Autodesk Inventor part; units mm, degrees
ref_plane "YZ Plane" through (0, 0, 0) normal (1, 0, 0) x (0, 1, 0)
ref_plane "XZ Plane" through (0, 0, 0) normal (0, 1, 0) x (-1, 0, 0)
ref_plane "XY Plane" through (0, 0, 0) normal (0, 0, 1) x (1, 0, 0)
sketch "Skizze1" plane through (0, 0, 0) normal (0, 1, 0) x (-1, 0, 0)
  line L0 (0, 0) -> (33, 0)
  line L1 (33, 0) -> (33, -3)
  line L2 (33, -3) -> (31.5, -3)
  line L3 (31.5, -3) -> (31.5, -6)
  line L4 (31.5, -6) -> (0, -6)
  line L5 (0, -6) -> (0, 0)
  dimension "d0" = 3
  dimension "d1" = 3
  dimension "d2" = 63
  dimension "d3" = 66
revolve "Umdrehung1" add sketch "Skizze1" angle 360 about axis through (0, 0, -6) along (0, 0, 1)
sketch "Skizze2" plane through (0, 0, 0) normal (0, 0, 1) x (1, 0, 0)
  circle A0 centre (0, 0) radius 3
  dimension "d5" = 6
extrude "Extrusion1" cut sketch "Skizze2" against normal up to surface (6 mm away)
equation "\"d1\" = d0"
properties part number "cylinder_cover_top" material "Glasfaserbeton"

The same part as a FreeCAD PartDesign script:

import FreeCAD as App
import Part
import Sketcher
from FreeCAD import Vector
Q = App.Units.Quantity

doc = App.newDocument("Part")
body = doc.addObject("PartDesign::Body", "Body")

# Sketch on XZ plane
sketch1 = body.newObject("Sketcher::SketchObject", "Sketch")
sketch1.AttachmentSupport = (doc.getObject("XZ_Plane"), [""])
sketch1.MapMode = "FlatFace"
sketch1.addGeometry([
    Part.LineSegment(Vector(-33, 0, 0), Vector(0, 0, 0)),  # 0
    Part.LineSegment(Vector(0, 0, 0), Vector(0, -6, 0)),  # 1
    Part.LineSegment(Vector(0, -6, 0), Vector(-31.5, -6, 0)),  # 2
    Part.LineSegment(Vector(-31.5, -6, 0), Vector(-31.5, -3, 0)),  # 3
    Part.LineSegment(Vector(-31.5, -3, 0), Vector(-33, -3, 0)),  # 4
    Part.LineSegment(Vector(-33, -3, 0), Vector(-33, 0, 0)),  # 5
], False)
sketch1.addConstraint([
    Sketcher.Constraint("Coincident", 0, 2, 1, 1),
    Sketcher.Constraint("Coincident", 1, 2, 2, 1),
    Sketcher.Constraint("Coincident", 2, 2, 3, 1),
    Sketcher.Constraint("Coincident", 3, 2, 4, 1),
    Sketcher.Constraint("Coincident", 4, 2, 5, 1),
    Sketcher.Constraint("Coincident", 5, 2, 0, 1),
    Sketcher.Constraint("Horizontal", 0),
    Sketcher.Constraint("Vertical", 1),
    Sketcher.Constraint("Horizontal", 2),
    Sketcher.Constraint("Vertical", 3),
    Sketcher.Constraint("Horizontal", 4),
    Sketcher.Constraint("Vertical", 5),
    Sketcher.Constraint("Coincident", 0, 2, -1, 1),
    Sketcher.Constraint("Equal", 3, 5),
    Sketcher.Constraint("DistanceY", 3, 1, 3, 2, Q("3 mm")),
    Sketcher.Constraint("DistanceX", 0, 1, 0, 2, Q("33 mm")),
    Sketcher.Constraint("DistanceX", 2, 2, 2, 1, Q("31.5 mm")),
])
revolution = body.newObject("PartDesign::Revolution", "Revolution")
revolution.Profile = sketch1
revolution.ReferenceAxis = (sketch1, ["V_Axis"])
revolution.Angle = 360

# Sketch on XY plane
sketch2 = body.newObject("Sketcher::SketchObject", "Sketch001")
sketch2.AttachmentSupport = (doc.getObject("XY_Plane"), [""])
sketch2.MapMode = "FlatFace"
sketch2.addGeometry(Part.Circle(Vector(0, 0, 0), Vector(0, 0, 1), 3), False)
sketch2.addConstraint([
    Sketcher.Constraint("Coincident", 0, 3, -1, 1),
    Sketcher.Constraint("Diameter", 0, Q("6 mm")),
])
pocket1 = body.newObject("PartDesign::Pocket", "Pocket")
pocket1.Profile = sketch2
pocket1.Length = 6

doc.recompute()
